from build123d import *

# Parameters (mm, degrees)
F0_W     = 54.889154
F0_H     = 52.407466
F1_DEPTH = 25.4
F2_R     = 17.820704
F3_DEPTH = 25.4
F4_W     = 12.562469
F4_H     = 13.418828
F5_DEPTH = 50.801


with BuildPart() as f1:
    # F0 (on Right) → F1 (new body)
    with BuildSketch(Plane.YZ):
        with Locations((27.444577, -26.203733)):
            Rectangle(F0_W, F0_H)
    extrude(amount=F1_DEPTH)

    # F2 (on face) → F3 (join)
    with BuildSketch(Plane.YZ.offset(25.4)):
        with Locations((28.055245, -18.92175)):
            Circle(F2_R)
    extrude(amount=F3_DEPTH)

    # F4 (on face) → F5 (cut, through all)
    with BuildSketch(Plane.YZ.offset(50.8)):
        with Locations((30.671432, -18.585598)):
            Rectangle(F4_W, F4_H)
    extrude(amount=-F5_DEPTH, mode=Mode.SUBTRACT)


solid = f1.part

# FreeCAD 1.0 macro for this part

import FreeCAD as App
import Part
import Sketcher
from FreeCAD import Vector
Q = App.Units.Quantity

doc = App.newDocument("Part")
params = doc.addObject("Spreadsheet::Sheet", "Params")
for row, (alias, value) in enumerate([
    ("pad1_length", "1 in"),
    ("pad2_length", "1 in"),
], start=1):
    params.set(f"A{row}", alias)
    params.set(f"B{row}", "=" + value)
    params.setAlias(f"B{row}", alias)

body = doc.addObject("PartDesign::Body", "Body")

# Sketch on YZ plane
sketch1 = doc.addObject("Sketcher::SketchObject", "Sketch")
body.addObject(sketch1)
sketch1.AttachmentSupport = (doc.YZ_Plane, [""])
sketch1.MapMode = "FlatFace"
sketch1.addGeometry(Part.LineSegment(Vector(0, 0, 0), Vector(0, -52.407466, 0)), False)
sketch1.addGeometry(Part.LineSegment(Vector(0, -52.407466, 0), Vector(54.889154, -52.407466, 0)), False)
sketch1.addGeometry(Part.LineSegment(Vector(54.889154, -52.407466, 0), Vector(54.889154, 0, 0)), False)
sketch1.addGeometry(Part.LineSegment(Vector(54.889154, 0, 0), Vector(0, 0, 0)), False)
sketch1.addConstraint(Sketcher.Constraint("Coincident", 0, 2, 1, 1))
sketch1.addConstraint(Sketcher.Constraint("Coincident", 1, 2, 2, 1))
sketch1.addConstraint(Sketcher.Constraint("Coincident", 2, 2, 3, 1))
sketch1.addConstraint(Sketcher.Constraint("Coincident", 3, 2, 0, 1))
sketch1.addConstraint(Sketcher.Constraint("Vertical", 0))
sketch1.addConstraint(Sketcher.Constraint("Horizontal", 1))
sketch1.addConstraint(Sketcher.Constraint("Vertical", 2))
sketch1.addConstraint(Sketcher.Constraint("Horizontal", 3))
sketch1.addConstraint(Sketcher.Constraint("Coincident", 3, 2, -1, 1))
sketch1.addConstraint(Sketcher.Constraint("DistanceX", 1, 1, 1, 2, Q("54.889154 mm")))
sketch1.addConstraint(Sketcher.Constraint("DistanceY", 0, 2, 0, 1, Q("52.407466 mm")))
pad1 = doc.addObject("PartDesign::Pad", "Pad")
body.addObject(pad1)
pad1.Profile = sketch1
pad1.setExpression("Length", "Params.pad1_length")

# Sketch on YZ plane
sketch2 = doc.addObject("Sketcher::SketchObject", "Sketch001")
body.addObject(sketch2)
sketch2.AttachmentSupport = (doc.YZ_Plane, [""])
sketch2.MapMode = "FlatFace"
sketch2.AttachmentOffset = App.Placement(Vector(0, 0, 1 * 25.4), App.Rotation())
sketch2.addGeometry(Part.Circle(Vector(28.055245, -18.92175, 0), Vector(0, 0, 1), 17.820704), False)
sketch2.addConstraint(Sketcher.Constraint("Diameter", 0, Q("35.641408 mm")))
sketch2.addConstraint(Sketcher.Constraint("DistanceY", 0, 3, -1, 1, Q("18.92175 mm")))
sketch2.addConstraint(Sketcher.Constraint("DistanceX", -1, 1, 0, 3, Q("28.055245 mm")))
pad2 = doc.addObject("PartDesign::Pad", "Pad001")
body.addObject(pad2)
pad2.Profile = sketch2
pad2.setExpression("Length", "Params.pad2_length")

# Sketch on YZ plane
sketch3 = doc.addObject("Sketcher::SketchObject", "Sketch002")
body.addObject(sketch3)
sketch3.AttachmentSupport = (doc.YZ_Plane, [""])
sketch3.MapMode = "FlatFace"
sketch3.AttachmentOffset = App.Placement(Vector(0, 0, 2 * 25.4), App.Rotation())
sketch3.addGeometry(Part.LineSegment(Vector(24.390197, -11.876184, 0), Vector(24.390197, -25.295012, 0)), False)
sketch3.addGeometry(Part.LineSegment(Vector(24.390197, -25.295012, 0), Vector(36.952666, -25.295012, 0)), False)
sketch3.addGeometry(Part.LineSegment(Vector(36.952666, -25.295012, 0), Vector(36.952666, -11.876184, 0)), False)
sketch3.addGeometry(Part.LineSegment(Vector(36.952666, -11.876184, 0), Vector(24.390197, -11.876184, 0)), False)
sketch3.addConstraint(Sketcher.Constraint("Coincident", 0, 2, 1, 1))
sketch3.addConstraint(Sketcher.Constraint("Coincident", 1, 2, 2, 1))
sketch3.addConstraint(Sketcher.Constraint("Coincident", 2, 2, 3, 1))
sketch3.addConstraint(Sketcher.Constraint("Coincident", 3, 2, 0, 1))
sketch3.addConstraint(Sketcher.Constraint("Vertical", 0))
sketch3.addConstraint(Sketcher.Constraint("Horizontal", 1))
sketch3.addConstraint(Sketcher.Constraint("Vertical", 2))
sketch3.addConstraint(Sketcher.Constraint("Horizontal", 3))
sketch3.addConstraint(Sketcher.Constraint("DistanceX", 1, 1, 1, 2, Q("12.562469 mm")))
sketch3.addConstraint(Sketcher.Constraint("DistanceY", 0, 2, 0, 1, Q("13.418828 mm")))
sketch3.addConstraint(Sketcher.Constraint("DistanceY", 0, 2, -1, 1, Q("25.295012 mm")))
sketch3.addConstraint(Sketcher.Constraint("DistanceX", -1, 1, 0, 2, Q("24.390197 mm")))
pocket1 = doc.addObject("PartDesign::Pocket", "Pocket")
body.addObject(pocket1)
pocket1.Profile = sketch3
pocket1.Type = "ThroughAll"

doc.recompute()
